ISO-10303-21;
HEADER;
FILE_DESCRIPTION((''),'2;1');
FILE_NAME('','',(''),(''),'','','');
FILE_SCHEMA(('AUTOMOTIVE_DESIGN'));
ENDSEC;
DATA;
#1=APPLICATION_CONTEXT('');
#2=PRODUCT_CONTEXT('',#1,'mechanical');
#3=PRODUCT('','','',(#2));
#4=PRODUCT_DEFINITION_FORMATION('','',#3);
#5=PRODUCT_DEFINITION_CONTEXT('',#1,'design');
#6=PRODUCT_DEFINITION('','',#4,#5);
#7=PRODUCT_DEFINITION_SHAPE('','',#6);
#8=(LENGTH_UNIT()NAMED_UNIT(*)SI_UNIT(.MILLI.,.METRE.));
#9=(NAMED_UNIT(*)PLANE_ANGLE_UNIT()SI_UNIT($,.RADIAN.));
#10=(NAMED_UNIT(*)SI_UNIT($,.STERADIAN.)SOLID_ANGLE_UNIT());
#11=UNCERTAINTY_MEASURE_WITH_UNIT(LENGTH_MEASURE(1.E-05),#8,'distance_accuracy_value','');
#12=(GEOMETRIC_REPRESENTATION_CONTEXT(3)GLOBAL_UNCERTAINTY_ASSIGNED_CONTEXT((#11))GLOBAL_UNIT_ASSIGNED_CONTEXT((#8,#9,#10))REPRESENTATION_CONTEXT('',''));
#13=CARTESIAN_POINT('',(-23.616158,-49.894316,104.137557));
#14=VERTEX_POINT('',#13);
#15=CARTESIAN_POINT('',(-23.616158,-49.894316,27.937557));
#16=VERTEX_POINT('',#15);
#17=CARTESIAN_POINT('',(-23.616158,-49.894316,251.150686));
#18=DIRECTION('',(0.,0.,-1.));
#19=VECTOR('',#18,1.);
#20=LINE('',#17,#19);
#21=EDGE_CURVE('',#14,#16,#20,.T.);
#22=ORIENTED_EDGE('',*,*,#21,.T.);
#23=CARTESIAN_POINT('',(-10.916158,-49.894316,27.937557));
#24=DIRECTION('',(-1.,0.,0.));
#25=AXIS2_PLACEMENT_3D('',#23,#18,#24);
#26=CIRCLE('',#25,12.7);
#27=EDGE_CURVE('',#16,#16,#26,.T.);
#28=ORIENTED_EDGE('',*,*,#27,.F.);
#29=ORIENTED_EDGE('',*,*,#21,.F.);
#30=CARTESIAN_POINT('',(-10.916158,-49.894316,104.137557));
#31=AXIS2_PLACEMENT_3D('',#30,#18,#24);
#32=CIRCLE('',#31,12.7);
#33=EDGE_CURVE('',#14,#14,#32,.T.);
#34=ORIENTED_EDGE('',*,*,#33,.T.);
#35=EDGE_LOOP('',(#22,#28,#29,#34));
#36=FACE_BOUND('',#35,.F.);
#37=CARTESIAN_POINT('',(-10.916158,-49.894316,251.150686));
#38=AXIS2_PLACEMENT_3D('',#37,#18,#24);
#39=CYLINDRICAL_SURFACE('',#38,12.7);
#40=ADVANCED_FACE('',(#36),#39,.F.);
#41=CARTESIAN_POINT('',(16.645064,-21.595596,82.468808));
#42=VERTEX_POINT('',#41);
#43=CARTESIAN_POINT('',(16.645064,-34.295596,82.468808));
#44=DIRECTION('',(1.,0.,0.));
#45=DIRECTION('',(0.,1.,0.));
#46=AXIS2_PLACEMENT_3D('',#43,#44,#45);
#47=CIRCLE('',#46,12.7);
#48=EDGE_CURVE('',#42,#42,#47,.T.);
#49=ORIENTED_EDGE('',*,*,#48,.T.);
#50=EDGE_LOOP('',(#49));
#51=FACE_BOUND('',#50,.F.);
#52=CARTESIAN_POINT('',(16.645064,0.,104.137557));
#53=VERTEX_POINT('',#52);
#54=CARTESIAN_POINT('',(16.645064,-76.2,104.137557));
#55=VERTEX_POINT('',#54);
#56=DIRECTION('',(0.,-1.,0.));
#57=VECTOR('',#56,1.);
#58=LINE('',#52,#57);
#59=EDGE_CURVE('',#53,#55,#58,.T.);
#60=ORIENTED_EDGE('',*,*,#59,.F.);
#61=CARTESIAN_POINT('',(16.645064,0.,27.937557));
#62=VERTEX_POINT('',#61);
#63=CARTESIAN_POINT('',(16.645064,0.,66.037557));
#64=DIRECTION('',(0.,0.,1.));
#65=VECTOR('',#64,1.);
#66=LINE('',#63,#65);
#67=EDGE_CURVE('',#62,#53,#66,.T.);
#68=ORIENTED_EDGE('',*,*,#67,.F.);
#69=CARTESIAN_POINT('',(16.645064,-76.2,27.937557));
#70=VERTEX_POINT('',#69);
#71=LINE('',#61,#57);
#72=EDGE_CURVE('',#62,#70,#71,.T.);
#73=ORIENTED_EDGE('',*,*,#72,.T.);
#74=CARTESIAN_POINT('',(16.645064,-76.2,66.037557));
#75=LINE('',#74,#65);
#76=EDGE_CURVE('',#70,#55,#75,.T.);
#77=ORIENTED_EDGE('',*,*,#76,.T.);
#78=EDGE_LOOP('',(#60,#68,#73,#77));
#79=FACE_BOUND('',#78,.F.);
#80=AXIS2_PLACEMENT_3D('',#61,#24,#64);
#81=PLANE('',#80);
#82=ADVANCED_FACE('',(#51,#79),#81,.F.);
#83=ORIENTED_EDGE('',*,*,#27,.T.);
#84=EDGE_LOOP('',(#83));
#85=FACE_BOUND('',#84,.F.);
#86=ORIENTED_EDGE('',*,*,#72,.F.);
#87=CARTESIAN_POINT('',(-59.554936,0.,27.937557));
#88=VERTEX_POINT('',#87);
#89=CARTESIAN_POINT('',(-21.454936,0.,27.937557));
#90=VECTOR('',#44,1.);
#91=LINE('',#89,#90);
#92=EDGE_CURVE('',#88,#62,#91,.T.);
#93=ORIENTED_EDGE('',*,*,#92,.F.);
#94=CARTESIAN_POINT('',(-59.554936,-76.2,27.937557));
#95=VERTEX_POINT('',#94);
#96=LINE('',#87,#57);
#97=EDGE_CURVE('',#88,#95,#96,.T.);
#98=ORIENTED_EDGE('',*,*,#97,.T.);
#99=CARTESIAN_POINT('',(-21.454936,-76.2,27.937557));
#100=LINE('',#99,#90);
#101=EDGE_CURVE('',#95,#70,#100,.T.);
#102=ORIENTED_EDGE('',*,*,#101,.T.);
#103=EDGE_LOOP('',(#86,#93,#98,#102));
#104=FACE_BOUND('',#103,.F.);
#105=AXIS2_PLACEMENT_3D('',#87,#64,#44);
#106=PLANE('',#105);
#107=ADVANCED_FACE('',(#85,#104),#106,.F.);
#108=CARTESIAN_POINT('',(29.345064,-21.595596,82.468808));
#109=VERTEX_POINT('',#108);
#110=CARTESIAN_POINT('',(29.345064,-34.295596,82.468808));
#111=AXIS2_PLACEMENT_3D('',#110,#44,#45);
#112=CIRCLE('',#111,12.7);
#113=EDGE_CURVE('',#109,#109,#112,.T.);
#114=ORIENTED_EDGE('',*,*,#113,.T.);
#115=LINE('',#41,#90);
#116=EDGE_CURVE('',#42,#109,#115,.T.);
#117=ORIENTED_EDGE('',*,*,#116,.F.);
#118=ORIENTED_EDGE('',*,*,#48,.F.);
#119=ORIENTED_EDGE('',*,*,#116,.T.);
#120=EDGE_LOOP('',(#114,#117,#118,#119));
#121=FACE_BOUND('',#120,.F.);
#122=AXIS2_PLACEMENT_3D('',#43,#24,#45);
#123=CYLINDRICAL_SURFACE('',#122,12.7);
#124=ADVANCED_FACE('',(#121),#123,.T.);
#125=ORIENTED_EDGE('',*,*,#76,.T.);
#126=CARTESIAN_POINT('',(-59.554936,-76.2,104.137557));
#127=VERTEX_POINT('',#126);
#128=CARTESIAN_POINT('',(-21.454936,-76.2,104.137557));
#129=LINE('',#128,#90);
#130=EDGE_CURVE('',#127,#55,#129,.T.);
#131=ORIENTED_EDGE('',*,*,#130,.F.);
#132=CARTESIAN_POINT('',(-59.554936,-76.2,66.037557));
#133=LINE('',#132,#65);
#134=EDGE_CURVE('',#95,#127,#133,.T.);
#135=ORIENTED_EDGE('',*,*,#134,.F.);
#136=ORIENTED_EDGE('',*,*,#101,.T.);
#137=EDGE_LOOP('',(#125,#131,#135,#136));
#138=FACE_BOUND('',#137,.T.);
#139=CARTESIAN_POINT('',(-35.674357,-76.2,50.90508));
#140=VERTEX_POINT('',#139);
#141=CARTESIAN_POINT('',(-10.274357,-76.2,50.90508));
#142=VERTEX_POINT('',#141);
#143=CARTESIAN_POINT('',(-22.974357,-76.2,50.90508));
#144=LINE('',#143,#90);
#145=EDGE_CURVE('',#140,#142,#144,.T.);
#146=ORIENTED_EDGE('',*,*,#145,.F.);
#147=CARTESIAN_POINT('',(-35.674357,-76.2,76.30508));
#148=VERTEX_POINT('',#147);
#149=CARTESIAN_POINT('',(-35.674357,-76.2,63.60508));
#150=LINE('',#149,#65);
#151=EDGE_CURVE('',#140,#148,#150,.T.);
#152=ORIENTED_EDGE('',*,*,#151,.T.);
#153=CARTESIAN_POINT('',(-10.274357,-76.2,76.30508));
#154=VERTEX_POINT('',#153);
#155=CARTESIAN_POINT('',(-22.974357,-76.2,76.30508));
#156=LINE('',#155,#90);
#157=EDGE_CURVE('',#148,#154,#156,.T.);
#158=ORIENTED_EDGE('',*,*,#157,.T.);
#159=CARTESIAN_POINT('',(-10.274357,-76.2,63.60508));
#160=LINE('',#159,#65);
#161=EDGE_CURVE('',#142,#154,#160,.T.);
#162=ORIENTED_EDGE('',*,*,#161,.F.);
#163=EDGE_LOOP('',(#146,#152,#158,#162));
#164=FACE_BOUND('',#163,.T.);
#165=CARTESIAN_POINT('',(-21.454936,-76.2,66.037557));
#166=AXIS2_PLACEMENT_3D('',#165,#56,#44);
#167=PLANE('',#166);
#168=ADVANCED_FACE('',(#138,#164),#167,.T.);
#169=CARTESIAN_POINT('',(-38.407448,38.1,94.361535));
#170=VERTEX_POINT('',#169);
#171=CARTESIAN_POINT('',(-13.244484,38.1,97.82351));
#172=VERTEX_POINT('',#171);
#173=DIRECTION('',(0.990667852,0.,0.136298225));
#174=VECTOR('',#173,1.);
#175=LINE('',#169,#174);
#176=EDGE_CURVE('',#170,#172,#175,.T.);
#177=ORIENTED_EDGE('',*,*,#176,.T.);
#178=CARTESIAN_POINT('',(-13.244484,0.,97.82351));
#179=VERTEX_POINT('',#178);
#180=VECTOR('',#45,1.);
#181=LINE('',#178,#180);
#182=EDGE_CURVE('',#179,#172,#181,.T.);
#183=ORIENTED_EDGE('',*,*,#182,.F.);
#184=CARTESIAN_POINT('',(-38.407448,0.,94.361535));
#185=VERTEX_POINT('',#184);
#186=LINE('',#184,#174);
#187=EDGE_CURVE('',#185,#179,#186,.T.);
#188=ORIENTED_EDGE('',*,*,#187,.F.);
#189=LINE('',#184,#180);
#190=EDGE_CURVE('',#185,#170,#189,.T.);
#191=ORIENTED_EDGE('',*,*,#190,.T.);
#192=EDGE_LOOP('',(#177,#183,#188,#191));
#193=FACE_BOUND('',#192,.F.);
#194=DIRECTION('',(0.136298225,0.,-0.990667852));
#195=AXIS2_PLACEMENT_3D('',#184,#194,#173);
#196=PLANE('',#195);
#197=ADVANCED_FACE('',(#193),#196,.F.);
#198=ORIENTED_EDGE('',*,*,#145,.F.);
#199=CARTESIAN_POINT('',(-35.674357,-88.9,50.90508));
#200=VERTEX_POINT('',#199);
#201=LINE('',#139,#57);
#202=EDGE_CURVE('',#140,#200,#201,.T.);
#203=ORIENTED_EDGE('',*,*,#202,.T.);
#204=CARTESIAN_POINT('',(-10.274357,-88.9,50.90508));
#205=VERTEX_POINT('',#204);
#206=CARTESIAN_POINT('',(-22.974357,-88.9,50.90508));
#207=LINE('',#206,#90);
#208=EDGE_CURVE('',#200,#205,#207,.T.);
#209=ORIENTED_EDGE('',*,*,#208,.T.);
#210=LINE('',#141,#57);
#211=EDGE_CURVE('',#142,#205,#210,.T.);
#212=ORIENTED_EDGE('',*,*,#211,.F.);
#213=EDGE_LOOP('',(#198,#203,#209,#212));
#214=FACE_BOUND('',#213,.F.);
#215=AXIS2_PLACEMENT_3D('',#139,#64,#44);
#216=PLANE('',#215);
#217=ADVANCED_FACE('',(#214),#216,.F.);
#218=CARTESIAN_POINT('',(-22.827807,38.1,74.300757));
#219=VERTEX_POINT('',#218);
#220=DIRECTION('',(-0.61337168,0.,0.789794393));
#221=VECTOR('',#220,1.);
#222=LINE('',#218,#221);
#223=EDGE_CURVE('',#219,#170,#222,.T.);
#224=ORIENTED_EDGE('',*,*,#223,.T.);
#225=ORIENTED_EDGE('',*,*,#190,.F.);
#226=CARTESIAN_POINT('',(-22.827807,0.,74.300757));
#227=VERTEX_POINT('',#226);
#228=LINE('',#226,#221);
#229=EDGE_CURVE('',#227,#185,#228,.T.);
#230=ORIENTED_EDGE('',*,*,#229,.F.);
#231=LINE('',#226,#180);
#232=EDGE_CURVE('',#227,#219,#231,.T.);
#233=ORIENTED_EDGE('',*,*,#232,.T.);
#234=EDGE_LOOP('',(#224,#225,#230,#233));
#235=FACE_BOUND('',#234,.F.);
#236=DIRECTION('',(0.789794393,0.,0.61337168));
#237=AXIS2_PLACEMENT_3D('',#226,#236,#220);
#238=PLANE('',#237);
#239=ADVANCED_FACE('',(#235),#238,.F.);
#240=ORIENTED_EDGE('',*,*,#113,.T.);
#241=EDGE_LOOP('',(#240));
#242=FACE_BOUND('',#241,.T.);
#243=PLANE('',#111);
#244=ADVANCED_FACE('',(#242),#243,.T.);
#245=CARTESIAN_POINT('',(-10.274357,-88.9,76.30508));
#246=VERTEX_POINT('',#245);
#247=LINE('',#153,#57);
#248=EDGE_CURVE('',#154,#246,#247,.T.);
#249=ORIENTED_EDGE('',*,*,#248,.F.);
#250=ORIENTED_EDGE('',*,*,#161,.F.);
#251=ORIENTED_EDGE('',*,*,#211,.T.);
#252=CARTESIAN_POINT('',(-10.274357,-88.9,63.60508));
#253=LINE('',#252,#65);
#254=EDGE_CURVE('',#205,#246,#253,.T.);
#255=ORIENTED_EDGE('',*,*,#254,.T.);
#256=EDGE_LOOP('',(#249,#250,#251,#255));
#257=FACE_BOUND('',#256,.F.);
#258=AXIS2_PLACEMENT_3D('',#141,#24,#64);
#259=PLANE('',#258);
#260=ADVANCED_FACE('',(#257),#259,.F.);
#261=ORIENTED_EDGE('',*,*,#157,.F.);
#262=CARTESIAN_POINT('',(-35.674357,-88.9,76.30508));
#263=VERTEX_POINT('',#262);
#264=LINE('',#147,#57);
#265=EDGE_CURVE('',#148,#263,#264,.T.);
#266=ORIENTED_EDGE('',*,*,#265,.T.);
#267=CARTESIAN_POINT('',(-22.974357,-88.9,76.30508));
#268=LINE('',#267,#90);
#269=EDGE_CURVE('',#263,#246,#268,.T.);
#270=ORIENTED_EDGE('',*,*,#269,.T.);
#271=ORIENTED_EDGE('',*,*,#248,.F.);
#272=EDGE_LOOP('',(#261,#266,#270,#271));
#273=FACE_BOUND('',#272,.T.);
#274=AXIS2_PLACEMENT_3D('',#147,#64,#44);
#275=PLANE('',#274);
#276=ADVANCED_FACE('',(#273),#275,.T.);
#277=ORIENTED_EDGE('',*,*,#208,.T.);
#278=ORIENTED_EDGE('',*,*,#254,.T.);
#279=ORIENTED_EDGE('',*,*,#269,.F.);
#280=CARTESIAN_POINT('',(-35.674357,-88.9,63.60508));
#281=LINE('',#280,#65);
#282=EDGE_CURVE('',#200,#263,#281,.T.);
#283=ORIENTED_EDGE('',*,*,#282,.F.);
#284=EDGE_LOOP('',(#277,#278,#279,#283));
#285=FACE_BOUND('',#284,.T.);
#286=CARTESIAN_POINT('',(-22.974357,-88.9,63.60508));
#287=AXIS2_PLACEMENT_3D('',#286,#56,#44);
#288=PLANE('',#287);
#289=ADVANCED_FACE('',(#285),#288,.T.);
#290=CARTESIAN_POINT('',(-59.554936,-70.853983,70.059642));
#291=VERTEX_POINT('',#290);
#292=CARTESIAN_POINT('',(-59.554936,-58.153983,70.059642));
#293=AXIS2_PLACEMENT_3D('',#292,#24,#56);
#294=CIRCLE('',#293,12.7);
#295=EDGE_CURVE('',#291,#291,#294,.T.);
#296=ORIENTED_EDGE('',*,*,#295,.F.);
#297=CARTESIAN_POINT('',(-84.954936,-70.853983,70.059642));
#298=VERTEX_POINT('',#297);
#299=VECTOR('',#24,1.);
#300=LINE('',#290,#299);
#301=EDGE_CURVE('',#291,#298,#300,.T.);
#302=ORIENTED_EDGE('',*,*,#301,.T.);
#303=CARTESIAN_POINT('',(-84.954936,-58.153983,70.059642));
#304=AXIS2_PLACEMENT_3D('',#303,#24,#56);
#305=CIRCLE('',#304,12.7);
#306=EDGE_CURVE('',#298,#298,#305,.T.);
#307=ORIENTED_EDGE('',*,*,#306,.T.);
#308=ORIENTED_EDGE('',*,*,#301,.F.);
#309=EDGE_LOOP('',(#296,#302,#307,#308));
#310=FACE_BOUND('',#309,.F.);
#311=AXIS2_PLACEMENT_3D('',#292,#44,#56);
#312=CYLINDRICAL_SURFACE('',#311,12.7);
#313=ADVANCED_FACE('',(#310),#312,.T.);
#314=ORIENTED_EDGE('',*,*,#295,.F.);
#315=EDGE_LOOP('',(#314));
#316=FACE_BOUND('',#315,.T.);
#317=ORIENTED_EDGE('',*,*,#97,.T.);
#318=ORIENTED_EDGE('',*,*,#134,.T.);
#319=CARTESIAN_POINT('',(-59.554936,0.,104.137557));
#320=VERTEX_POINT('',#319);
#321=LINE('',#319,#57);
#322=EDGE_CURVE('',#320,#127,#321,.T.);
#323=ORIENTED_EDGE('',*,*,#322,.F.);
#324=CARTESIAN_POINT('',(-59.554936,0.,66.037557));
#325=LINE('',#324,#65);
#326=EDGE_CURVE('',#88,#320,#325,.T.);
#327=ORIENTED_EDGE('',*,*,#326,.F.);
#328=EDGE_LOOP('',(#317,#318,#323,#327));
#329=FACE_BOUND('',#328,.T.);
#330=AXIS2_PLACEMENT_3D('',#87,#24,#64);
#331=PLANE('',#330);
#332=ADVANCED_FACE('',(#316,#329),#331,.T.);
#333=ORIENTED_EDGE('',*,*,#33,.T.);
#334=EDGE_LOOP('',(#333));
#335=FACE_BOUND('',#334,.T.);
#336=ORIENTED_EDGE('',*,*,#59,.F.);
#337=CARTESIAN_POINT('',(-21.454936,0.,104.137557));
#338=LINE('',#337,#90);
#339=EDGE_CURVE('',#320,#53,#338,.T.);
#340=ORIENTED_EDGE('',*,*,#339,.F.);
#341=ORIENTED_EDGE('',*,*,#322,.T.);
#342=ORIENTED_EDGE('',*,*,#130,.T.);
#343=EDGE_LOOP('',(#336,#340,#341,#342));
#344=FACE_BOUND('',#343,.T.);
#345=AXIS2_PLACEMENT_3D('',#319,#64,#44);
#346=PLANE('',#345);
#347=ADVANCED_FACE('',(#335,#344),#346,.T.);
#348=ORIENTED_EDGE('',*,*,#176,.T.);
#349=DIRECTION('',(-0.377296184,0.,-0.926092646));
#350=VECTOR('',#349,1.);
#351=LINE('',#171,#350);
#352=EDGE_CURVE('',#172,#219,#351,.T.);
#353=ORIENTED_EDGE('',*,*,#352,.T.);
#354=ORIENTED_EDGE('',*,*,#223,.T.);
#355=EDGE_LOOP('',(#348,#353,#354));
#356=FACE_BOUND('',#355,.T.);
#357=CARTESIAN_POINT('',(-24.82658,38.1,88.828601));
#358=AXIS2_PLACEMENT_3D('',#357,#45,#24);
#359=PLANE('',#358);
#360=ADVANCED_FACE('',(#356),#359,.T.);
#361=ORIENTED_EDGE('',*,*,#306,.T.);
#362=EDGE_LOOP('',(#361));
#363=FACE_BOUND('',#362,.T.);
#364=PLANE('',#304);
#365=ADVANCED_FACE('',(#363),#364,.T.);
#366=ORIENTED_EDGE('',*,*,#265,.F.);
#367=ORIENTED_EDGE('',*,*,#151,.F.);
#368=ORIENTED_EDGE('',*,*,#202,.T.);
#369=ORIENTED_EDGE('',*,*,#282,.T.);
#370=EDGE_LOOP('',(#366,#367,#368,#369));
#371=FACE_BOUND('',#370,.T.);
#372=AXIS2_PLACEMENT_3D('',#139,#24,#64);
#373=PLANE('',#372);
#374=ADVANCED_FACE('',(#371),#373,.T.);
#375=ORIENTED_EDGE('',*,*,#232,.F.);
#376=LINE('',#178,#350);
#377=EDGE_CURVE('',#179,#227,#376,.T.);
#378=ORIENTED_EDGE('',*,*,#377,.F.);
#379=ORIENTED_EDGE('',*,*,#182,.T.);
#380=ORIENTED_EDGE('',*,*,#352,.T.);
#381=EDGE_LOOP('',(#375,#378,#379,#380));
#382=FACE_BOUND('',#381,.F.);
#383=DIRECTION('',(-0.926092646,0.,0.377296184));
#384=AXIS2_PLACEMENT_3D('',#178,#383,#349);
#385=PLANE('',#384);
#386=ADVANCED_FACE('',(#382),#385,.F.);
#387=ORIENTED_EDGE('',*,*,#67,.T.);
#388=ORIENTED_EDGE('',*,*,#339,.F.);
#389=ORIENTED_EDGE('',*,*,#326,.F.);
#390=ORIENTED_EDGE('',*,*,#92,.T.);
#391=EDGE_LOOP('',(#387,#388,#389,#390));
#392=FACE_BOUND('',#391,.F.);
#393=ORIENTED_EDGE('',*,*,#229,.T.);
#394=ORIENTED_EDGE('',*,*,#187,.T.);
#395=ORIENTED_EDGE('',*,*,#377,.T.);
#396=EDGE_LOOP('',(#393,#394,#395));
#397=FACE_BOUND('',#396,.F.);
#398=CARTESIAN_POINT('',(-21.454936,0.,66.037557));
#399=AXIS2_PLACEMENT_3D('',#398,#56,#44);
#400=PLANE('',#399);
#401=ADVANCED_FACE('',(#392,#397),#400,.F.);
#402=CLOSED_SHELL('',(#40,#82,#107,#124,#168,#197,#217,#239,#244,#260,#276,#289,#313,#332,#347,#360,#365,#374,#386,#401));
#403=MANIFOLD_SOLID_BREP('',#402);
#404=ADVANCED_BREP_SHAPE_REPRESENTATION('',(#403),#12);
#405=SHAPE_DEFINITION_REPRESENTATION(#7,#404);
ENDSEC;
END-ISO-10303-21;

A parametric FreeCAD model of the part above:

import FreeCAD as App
import Part
import Sketcher
Q = App.Units.Quantity

doc = App.newDocument("Part")
body = doc.addObject("PartDesign::Body", "Body")

# Sketch on XZ plane
sketch1 = body.newObject("Sketcher::SketchObject", "Sketch")
sketch1.AttachmentSupport = (doc.getObject("XZ_Plane"), [""])
sketch1.MapMode = "FlatFace"
sketch1.addGeometry([
    Part.LineSegment(App.Vector(-60, 104, 0), App.Vector(-60, 28, 0)),
    Part.LineSegment(App.Vector(-60, 28, 0), App.Vector(17, 28, 0)),
    Part.LineSegment(App.Vector(17, 28, 0), App.Vector(17, 104, 0)),
    Part.LineSegment(App.Vector(17, 104, 0), App.Vector(-60, 104, 0)),
], False)
sketch1.addConstraint([
    Sketcher.Constraint("Coincident", 0, 2, 1, 1),
    Sketcher.Constraint("Coincident", 1, 2, 2, 1),
    Sketcher.Constraint("Coincident", 2, 2, 3, 1),
    Sketcher.Constraint("Coincident", 3, 2, 0, 1),
    Sketcher.Constraint("Vertical", 0),
    Sketcher.Constraint("Horizontal", 1),
    Sketcher.Constraint("Vertical", 2),
    Sketcher.Constraint("Horizontal", 3),
    Sketcher.Constraint("Equal", 3, 0),
    Sketcher.Constraint("DistanceX", 1, 1, 1, 2, Q("3 in")),
    Sketcher.Constraint("DistanceX", 0, 2, -1, 1, Q("59.554936 mm")),
    Sketcher.Constraint("DistanceY", -1, 1, 0, 2, Q("27.937557 mm")),
])
pad1 = body.newObject("PartDesign::Pad", "Pad")
pad1.Profile = sketch1
pad1.Length = Q("3 in")

# Sketch on XZ plane
sketch2 = body.newObject("Sketcher::SketchObject", "Sketch001")
sketch2.AttachmentSupport = (doc.getObject("XZ_Plane"), [""])
sketch2.MapMode = "FlatFace"
sketch2.AttachmentOffset = App.Placement(App.Vector(0, 0, 3 * 25.4), App.Rotation())
sketch2.addGeometry([
    Part.LineSegment(App.Vector(-36, 76, 0), App.Vector(-36, 51, 0)),
    Part.LineSegment(App.Vector(-36, 51, 0), App.Vector(-10, 51, 0)),
    Part.LineSegment(App.Vector(-10, 51, 0), App.Vector(-10, 76, 0)),
    Part.LineSegment(App.Vector(-10, 76, 0), App.Vector(-36, 76, 0)),
], False)
sketch2.addConstraint([
    Sketcher.Constraint("Coincident", 0, 2, 1, 1),
    Sketcher.Constraint("Coincident", 1, 2, 2, 1),
    Sketcher.Constraint("Coincident", 2, 2, 3, 1),
    Sketcher.Constraint("Coincident", 3, 2, 0, 1),
    Sketcher.Constraint("Vertical", 0),
    Sketcher.Constraint("Horizontal", 1),
    Sketcher.Constraint("Vertical", 2),
    Sketcher.Constraint("Horizontal", 3),
    Sketcher.Constraint("Equal", 3, 0),
    Sketcher.Constraint("DistanceX", 1, 1, 1, 2, Q("1 in")),
    Sketcher.Constraint("DistanceY", -1, 1, 0, 2, Q("50.90508 mm")),
    Sketcher.Constraint("DistanceX", 0, 2, -1, 1, Q("35.674357 mm")),
])
pad2 = body.newObject("PartDesign::Pad", "Pad001")
pad2.Profile = sketch2
pad2.Length = Q("0.5 in")

# Sketch on YZ plane
sketch3 = body.newObject("Sketcher::SketchObject", "Sketch002")
sketch3.AttachmentSupport = (doc.getObject("YZ_Plane"), [""])
sketch3.MapMode = "FlatFace"
sketch3.AttachmentOffset = App.Placement(App.Vector(0, 0, 16.645064), App.Rotation())
sketch3.addGeometry(Part.Circle(App.Vector(-34, 82, 0), App.Vector(0, 0, 1), 13), False)
sketch3.addConstraint([
    Sketcher.Constraint("Diameter", 0, Q("1 in")),
    Sketcher.Constraint("DistanceX", 0, 3, -1, 1, Q("34.295596 mm")),
    Sketcher.Constraint("DistanceY", -1, 1, 0, 3, Q("82.468808 mm")),
])
pad3 = body.newObject("PartDesign::Pad", "Pad002")
pad3.Profile = sketch3
pad3.Length = Q("0.5 in")

# Sketch on XY plane
sketch4 = body.newObject("Sketcher::SketchObject", "Sketch003")
sketch4.AttachmentSupport = (doc.getObject("XY_Plane"), [""])
sketch4.MapMode = "FlatFace"
sketch4.AttachmentOffset = App.Placement(App.Vector(0, 0, 104.137557), App.Rotation())
sketch4.addGeometry(Part.Circle(App.Vector(-11, -50, 0), App.Vector(0, 0, 1), 13), False)
sketch4.addConstraint([
    Sketcher.Constraint("Diameter", 0, Q("1 in")),
    Sketcher.Constraint("DistanceX", 0, 3, -1, 1, Q("10.916158 mm")),
    Sketcher.Constraint("DistanceY", 0, 3, -1, 1, Q("49.894316 mm")),
])
doc.recompute()
hole = body.newObject("PartDesign::Hole", "Hole")
hole.Profile = sketch4
hole.ThreadType = "None"
hole.Diameter = Q("1 in")
hole.DepthType = "ThroughAll"

# Sketch on XZ plane
sketch5 = body.newObject("Sketcher::SketchObject", "Sketch004")
sketch5.AttachmentSupport = (doc.getObject("XZ_Plane"), [""])
sketch5.MapMode = "FlatFace"
sketch5.addGeometry([
    Part.LineSegment(App.Vector(-13, 98, 0), App.Vector(-23, 74, 0)),
    Part.LineSegment(App.Vector(-23, 74, 0), App.Vector(-38, 94, 0)),
    Part.LineSegment(App.Vector(-38, 94, 0), App.Vector(-13, 98, 0)),
], False)
sketch5.addConstraint([
    Sketcher.Constraint("Coincident", 0, 2, 1, 1),
    Sketcher.Constraint("Coincident", 1, 2, 2, 1),
    Sketcher.Constraint("Coincident", 2, 2, 0, 1),
    Sketcher.Constraint("Equal", 0, 1),
    Sketcher.Constraint("Equal", 1, 2),
    Sketcher.Constraint("Distance", 0, Q("1 in")),
    Sketcher.Constraint("DistanceX", 1, 2, -1, 1, Q("38.407448 mm")),
    Sketcher.Constraint("DistanceY", -1, 1, 2, 2, Q("97.82351 mm")),
    Sketcher.Constraint("DistanceX", 1, 2, 0, 2, Q("15.579641 mm")),
])
pad4 = body.newObject("PartDesign::Pad", "Pad003")
pad4.Profile = sketch5
pad4.Length = Q("1.5 in")
pad4.Reversed = True

# Sketch on YZ plane
sketch6 = body.newObject("Sketcher::SketchObject", "Sketch005")
sketch6.AttachmentSupport = (doc.getObject("YZ_Plane"), [""])
sketch6.MapMode = "FlatFace"
sketch6.AttachmentOffset = App.Placement(App.Vector(0, 0, -59.554936), App.Rotation())
sketch6.addGeometry(Part.Circle(App.Vector(-58, 70, 0), App.Vector(0, 0, 1), 13), False)
sketch6.addConstraint([
    Sketcher.Constraint("Diameter", 0, Q("1 in")),
    Sketcher.Constraint("DistanceY", -1, 1, 0, 3, Q("70.059642 mm")),
    Sketcher.Constraint("DistanceX", 0, 3, -1, 1, Q("58.153983 mm")),
])
pad5 = body.newObject("PartDesign::Pad", "Pad004")
pad5.Profile = sketch6
pad5.Length = Q("1 in")
pad5.Reversed = True

doc.recompute()
